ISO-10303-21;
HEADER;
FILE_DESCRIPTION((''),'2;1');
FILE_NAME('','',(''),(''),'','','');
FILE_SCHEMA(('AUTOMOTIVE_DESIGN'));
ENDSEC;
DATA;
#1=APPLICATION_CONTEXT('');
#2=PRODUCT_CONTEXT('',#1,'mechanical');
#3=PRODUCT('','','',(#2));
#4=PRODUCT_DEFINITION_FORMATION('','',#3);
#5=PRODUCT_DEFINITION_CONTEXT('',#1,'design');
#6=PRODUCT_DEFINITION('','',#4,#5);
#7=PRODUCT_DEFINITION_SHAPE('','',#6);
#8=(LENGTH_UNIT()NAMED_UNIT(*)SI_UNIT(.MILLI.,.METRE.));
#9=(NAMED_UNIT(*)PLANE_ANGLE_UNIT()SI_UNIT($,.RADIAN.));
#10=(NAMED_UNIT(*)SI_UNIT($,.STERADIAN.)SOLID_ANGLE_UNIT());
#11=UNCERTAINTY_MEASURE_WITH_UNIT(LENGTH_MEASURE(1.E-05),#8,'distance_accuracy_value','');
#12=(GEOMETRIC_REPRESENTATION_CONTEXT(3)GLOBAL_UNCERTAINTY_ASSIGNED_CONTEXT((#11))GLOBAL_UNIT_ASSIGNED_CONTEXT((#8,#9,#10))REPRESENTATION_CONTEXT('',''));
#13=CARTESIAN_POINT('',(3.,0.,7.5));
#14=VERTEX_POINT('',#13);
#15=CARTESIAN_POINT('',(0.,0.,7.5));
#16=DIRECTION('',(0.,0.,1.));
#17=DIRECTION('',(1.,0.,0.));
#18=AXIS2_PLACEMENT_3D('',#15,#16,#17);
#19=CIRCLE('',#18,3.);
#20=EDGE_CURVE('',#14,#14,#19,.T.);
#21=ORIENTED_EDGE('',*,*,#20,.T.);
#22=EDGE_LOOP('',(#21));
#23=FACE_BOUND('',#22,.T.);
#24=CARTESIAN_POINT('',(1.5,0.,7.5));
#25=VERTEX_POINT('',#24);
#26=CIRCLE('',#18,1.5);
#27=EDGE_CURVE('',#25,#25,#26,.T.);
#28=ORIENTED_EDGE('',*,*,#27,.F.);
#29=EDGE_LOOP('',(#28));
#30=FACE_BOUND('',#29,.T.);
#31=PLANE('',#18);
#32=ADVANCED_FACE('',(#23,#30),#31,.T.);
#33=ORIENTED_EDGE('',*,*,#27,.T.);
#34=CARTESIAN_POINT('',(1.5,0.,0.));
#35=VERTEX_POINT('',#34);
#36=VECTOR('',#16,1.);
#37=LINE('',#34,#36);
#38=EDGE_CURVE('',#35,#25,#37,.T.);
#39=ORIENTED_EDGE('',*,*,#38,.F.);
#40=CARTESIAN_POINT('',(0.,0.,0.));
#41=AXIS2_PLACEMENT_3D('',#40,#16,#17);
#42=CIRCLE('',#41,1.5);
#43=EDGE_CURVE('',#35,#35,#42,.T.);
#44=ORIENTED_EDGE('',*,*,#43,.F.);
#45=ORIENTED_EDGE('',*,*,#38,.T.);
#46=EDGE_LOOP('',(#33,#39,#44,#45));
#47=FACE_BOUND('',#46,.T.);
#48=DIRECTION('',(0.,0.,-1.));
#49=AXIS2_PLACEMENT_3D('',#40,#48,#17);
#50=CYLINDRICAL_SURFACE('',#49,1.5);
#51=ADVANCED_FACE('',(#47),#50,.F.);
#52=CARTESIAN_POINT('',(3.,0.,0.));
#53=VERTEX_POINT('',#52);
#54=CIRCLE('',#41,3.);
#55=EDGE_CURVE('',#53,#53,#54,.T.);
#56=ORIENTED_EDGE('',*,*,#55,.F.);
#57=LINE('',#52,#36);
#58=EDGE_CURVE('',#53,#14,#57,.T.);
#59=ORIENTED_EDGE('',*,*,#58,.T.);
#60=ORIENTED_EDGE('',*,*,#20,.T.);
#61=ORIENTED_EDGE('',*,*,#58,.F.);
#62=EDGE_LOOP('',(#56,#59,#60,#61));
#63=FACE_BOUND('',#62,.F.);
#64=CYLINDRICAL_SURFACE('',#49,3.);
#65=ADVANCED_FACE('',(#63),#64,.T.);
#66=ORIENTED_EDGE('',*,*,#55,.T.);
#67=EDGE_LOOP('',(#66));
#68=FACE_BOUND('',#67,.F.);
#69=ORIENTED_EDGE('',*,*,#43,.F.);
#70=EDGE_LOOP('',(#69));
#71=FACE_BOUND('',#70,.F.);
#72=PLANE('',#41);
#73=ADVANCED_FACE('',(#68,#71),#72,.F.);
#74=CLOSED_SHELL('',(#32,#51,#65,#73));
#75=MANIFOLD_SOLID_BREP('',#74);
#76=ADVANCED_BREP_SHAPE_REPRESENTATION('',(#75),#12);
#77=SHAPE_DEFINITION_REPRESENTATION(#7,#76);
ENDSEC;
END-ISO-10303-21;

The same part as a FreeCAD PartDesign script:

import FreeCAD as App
import Part
import Sketcher

V = App.Vector
Q = App.Units.Quantity

doc = App.newDocument("Part")
body = doc.addObject("PartDesign::Body", "Body")

sketch1 = doc.addObject("Sketcher::SketchObject", "Sketch")
body.addObject(sketch1)
sketch1.AttachmentSupport = (doc.XY_Plane, [""])
sketch1.MapMode = "FlatFace"
sketch1.addGeometry([
    Part.Circle(V(0, 0, 0), V(0, 0, 1), 3),
    Part.Circle(V(0, 0, 0), V(0, 0, 1), 1.5),
], False)
sketch1.addConstraint([
    Sketcher.Constraint("Coincident", 0, 3, -1, 1),
    Sketcher.Constraint("Coincident", 1, 3, -1, 1),
    Sketcher.Constraint("Diameter", 0, Q("6 mm")),
    Sketcher.Constraint("Diameter", 1, Q("3 mm")),
])
pad1 = doc.addObject("PartDesign::Pad", "Pad")
body.addObject(pad1)
pad1.Profile = sketch1
pad1.Length = 7.5

doc.recompute()
